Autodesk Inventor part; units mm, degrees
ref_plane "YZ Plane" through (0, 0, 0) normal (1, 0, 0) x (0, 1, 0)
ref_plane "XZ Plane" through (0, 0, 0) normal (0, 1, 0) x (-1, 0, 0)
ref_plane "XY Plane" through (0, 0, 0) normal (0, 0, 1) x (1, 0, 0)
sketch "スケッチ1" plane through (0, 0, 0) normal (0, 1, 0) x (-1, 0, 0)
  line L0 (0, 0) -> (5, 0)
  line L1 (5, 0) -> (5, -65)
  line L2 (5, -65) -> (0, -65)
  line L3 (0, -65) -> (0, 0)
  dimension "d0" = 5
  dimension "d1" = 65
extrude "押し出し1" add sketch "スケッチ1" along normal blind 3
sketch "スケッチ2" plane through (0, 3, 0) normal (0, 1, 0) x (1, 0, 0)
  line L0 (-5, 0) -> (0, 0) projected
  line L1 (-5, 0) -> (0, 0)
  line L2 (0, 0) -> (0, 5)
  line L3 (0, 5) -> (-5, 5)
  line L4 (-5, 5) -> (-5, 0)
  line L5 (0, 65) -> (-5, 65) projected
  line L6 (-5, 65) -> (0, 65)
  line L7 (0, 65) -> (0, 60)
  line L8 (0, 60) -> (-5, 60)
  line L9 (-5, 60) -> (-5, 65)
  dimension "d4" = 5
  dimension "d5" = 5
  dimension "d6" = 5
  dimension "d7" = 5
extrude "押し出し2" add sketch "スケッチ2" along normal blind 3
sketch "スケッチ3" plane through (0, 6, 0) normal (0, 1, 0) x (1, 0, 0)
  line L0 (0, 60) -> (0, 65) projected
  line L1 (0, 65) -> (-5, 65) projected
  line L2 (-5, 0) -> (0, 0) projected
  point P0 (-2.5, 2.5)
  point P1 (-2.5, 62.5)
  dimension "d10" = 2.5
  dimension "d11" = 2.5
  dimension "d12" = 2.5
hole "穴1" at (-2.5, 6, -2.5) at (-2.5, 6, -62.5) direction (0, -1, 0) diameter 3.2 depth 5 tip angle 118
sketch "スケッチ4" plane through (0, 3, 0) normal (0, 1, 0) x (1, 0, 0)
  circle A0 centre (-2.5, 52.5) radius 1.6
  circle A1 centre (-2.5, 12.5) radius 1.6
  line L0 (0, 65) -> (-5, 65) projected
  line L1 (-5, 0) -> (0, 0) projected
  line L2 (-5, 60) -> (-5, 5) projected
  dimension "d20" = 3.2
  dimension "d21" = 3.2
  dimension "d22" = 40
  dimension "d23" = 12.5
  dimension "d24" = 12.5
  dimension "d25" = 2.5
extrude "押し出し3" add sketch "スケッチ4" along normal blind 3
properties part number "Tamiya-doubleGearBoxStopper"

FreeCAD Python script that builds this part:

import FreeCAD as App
import Part
import Sketcher

V = App.Vector
Q = App.Units.Quantity


def add_polygon(sketch, points):
    """Adds a closed chain of lines whose ends are joined by coincident constraints."""
    first, n = sketch.GeometryCount, len(points)
    for a, b in zip(points, points[1:] + points[:1]):
        sketch.addGeometry(Part.LineSegment(App.Vector(*a, 0), App.Vector(*b, 0)), False)
    for i in range(n):
        sketch.addConstraint(Sketcher.Constraint("Coincident", first + i, 2, first + (i + 1) % n, 1))

doc = App.newDocument("Part")
body = doc.addObject("PartDesign::Body", "Body")

# Sketch on XZ plane
sketch1 = doc.addObject("Sketcher::SketchObject", "Sketch")
body.addObject(sketch1)
sketch1.AttachmentSupport = (doc.XZ_Plane, [""])
sketch1.MapMode = "FlatFace"
add_polygon(sketch1, [(-5, 0), (0, 0), (0, -65), (-5, -65)])  # lines 0-3
sketch1.addConstraint(Sketcher.Constraint("Horizontal", 0))
sketch1.addConstraint(Sketcher.Constraint("Vertical", 1))
sketch1.addConstraint(Sketcher.Constraint("Horizontal", 2))
sketch1.addConstraint(Sketcher.Constraint("Vertical", 3))
sketch1.addConstraint(Sketcher.Constraint("Coincident", 0, 2, -1, 1))
sketch1.addConstraint(Sketcher.Constraint("DistanceX", 0, 1, 0, 2, Q("5 mm")))
sketch1.addConstraint(Sketcher.Constraint("DistanceY", 1, 2, 1, 1, Q("65 mm")))
pad1 = doc.addObject("PartDesign::Pad", "Pad")
body.addObject(pad1)
pad1.Profile = sketch1
pad1.Length = 3
pad1.Reversed = True

# Sketch on XZ plane
sketch2 = doc.addObject("Sketcher::SketchObject", "Sketch001")
body.addObject(sketch2)
sketch2.AttachmentSupport = (doc.XZ_Plane, [""])
sketch2.MapMode = "FlatFace"
sketch2.AttachmentOffset = App.Placement(V(0, 0, -3), App.Rotation())
add_polygon(sketch2, [(-5, -5), (-5, 0), (0, 0), (0, -5)])  # lines 0-3
add_polygon(sketch2, [(0, -60), (0, -65), (-5, -65), (-5, -60)])  # lines 4-7
sketch2.addConstraint(Sketcher.Constraint("Vertical", 0))
sketch2.addConstraint(Sketcher.Constraint("Horizontal", 1))
sketch2.addConstraint(Sketcher.Constraint("Vertical", 2))
sketch2.addConstraint(Sketcher.Constraint("Horizontal", 3))
sketch2.addConstraint(Sketcher.Constraint("Vertical", 4))
sketch2.addConstraint(Sketcher.Constraint("Horizontal", 5))
sketch2.addConstraint(Sketcher.Constraint("Vertical", 6))
sketch2.addConstraint(Sketcher.Constraint("Horizontal", 7))
sketch2.addConstraint(Sketcher.Constraint("Coincident", 1, 2, -1, 1))
sketch2.addConstraint(Sketcher.Constraint("PointOnObject", 4, 2, -2))
sketch2.addConstraint(Sketcher.Constraint("Vertical", 3, 2, 5, 2))
sketch2.addConstraint(Sketcher.Constraint("Equal", 7, 0))
sketch2.addConstraint(Sketcher.Constraint("Equal", 2, 4))
sketch2.addConstraint(Sketcher.Constraint("DistanceX", 1, 1, 1, 2, Q("5 mm")))
sketch2.addConstraint(Sketcher.Constraint("DistanceY", 4, 2, -1, 1, Q("65 mm")))
pad2 = doc.addObject("PartDesign::Pad", "Pad001")
body.addObject(pad2)
pad2.Profile = sketch2
pad2.Length = 3
pad2.Reversed = True

# Sketch on XZ plane
sketch3 = doc.addObject("Sketcher::SketchObject", "Sketch002")
body.addObject(sketch3)
sketch3.AttachmentSupport = (doc.XZ_Plane, [""])
sketch3.MapMode = "FlatFace"
sketch3.AttachmentOffset = App.Placement(V(0, 0, -6), App.Rotation())
sketch3.addGeometry(Part.Circle(V(-2.5, -2.5, 0), V(0, 0, 1), 1.6), False)
sketch3.addGeometry(Part.Circle(V(-2.5, -62.5, 0), V(0, 0, 1), 1.6), False)
sketch3.addConstraint(Sketcher.Constraint("Equal", 0, 1))
sketch3.addConstraint(Sketcher.Constraint("Vertical", 0, 3, 1, 3))
sketch3.addConstraint(Sketcher.Constraint("Diameter", 0, Q("3.2 mm")))
sketch3.addConstraint(Sketcher.Constraint("DistanceY", 1, 3, 0, 3, Q("60 mm")))
sketch3.addConstraint(Sketcher.Constraint("DistanceX", 0, 3, -1, 1, Q("2.5 mm")))
sketch3.addConstraint(Sketcher.Constraint("DistanceY", 0, 3, -1, 1, Q("2.5 mm")))
doc.recompute()
hole = doc.addObject("PartDesign::Hole", "Hole")
body.addObject(hole)
hole.Profile = sketch3
hole.ThreadType = "None"
hole.Diameter = 3.2
hole.DepthType = "Dimension"
hole.Depth = 5
hole.DrillPoint = "Angled"
hole.DrillPointAngle = 118
hole.Reversed = True

# Sketch on XZ plane
sketch4 = doc.addObject("Sketcher::SketchObject", "Sketch003")
body.addObject(sketch4)
sketch4.AttachmentSupport = (doc.XZ_Plane, [""])
sketch4.MapMode = "FlatFace"
sketch4.AttachmentOffset = App.Placement(V(0, 0, -3), App.Rotation())
sketch4.addGeometry(Part.Circle(V(-2.5, -52.5, 0), V(0, 0, 1), 1.6), False)
sketch4.addGeometry(Part.Circle(V(-2.5, -12.5, 0), V(0, 0, 1), 1.6), False)
sketch4.addConstraint(Sketcher.Constraint("Equal", 0, 1))
sketch4.addConstraint(Sketcher.Constraint("Vertical", 0, 3, 1, 3))
sketch4.addConstraint(Sketcher.Constraint("Diameter", 0, Q("3.2 mm")))
sketch4.addConstraint(Sketcher.Constraint("DistanceY", 0, 3, 1, 3, Q("40 mm")))
sketch4.addConstraint(Sketcher.Constraint("DistanceX", 0, 3, -1, 1, Q("2.5 mm")))
sketch4.addConstraint(Sketcher.Constraint("DistanceY", 1, 3, -1, 1, Q("12.5 mm")))
pad3 = doc.addObject("PartDesign::Pad", "Pad002")
body.addObject(pad3)
pad3.Profile = sketch4
pad3.Length = 3
pad3.Reversed = True

doc.recompute()
